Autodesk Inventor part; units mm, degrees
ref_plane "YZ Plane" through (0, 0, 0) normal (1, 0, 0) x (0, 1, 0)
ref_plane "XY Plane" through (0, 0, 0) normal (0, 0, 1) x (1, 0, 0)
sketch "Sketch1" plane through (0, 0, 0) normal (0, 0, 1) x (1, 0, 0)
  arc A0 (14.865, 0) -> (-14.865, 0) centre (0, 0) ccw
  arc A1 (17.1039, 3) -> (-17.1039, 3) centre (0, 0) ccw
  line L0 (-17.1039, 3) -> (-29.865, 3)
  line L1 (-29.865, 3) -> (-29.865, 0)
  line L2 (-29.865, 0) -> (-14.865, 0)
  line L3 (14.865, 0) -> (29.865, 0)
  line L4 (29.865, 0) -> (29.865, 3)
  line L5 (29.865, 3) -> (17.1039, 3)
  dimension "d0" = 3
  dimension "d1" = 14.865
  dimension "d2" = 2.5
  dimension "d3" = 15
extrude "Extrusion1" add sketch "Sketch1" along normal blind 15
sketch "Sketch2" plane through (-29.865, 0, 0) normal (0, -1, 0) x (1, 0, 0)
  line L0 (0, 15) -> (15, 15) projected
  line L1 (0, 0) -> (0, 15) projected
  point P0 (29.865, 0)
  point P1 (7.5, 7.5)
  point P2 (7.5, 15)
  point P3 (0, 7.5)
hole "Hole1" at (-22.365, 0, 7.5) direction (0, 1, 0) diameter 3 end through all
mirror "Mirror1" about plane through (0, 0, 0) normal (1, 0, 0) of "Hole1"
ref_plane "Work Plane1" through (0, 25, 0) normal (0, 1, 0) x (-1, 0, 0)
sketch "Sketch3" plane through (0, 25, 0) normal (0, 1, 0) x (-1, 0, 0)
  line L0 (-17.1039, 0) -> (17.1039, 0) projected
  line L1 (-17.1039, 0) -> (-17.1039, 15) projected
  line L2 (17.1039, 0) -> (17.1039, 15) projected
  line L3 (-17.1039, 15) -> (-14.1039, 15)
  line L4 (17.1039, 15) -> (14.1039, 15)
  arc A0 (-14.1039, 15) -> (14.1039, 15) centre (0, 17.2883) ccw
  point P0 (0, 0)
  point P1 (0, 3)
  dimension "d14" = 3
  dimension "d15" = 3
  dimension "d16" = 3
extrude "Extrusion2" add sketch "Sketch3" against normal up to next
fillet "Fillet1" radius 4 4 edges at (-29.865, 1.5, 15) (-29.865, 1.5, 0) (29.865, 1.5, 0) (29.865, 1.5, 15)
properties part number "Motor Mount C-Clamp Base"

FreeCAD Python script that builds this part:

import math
import FreeCAD as App
import Part
import Sketcher
from FreeCAD import Vector
Q = App.Units.Quantity


def edges_at(feature, points):
    """Names of the edges that pass closest to the given points."""
    edges = feature.Shape.Edges
    near = lambda p: min(range(len(edges)), key=lambda i: edges[i].distToShape(Part.Vertex(*p))[0])
    return sorted({f"Edge{near(p) + 1}" for p in points})

doc = App.newDocument("Part")
body = doc.addObject("PartDesign::Body", "Body")

# Sketch on XY plane
sketch1 = doc.addObject("Sketcher::SketchObject", "Sketch")
body.addObject(sketch1)
sketch1.AttachmentSupport = (doc.XY_Plane, [""])
sketch1.MapMode = "FlatFace"
sketch1.addGeometry([
    Part.ArcOfCircle(Part.Circle(Vector(0, 0, 0), Vector(0, 0, 1), 14.9), math.radians(0), math.radians(180)),  # 0
    Part.LineSegment(Vector(14.9, 0, 0), Vector(29.9, 0, 0)),  # 1
    Part.LineSegment(Vector(29.9, 0, 0), Vector(29.9, 3, 0)),  # 2
    Part.LineSegment(Vector(29.9, 3, 0), Vector(17.1, 3, 0)),  # 3
    Part.ArcOfCircle(Part.Circle(Vector(0, 0, 0), Vector(0, 0, 1), 17.4), math.radians(10), math.radians(170)),  # 4
    Part.LineSegment(Vector(-17.1, 3, 0), Vector(-29.9, 3, 0)),  # 5
    Part.LineSegment(Vector(-29.9, 3, 0), Vector(-29.9, 0, 0)),  # 6
    Part.LineSegment(Vector(-29.9, 0, 0), Vector(-14.9, 0, 0)),  # 7
], False)
sketch1.addConstraint([
    Sketcher.Constraint("Coincident", 0, 1, 1, 1),
    Sketcher.Constraint("Coincident", 1, 2, 2, 1),
    Sketcher.Constraint("Coincident", 2, 2, 3, 1),
    Sketcher.Constraint("Coincident", 3, 2, 4, 1),
    Sketcher.Constraint("Coincident", 4, 2, 5, 1),
    Sketcher.Constraint("Coincident", 5, 2, 6, 1),
    Sketcher.Constraint("Coincident", 6, 2, 7, 1),
    Sketcher.Constraint("Coincident", 7, 2, 0, 2),
    Sketcher.Constraint("Horizontal", 1),
    Sketcher.Constraint("Vertical", 2),
    Sketcher.Constraint("Horizontal", 3),
    Sketcher.Constraint("Horizontal", 5),
    Sketcher.Constraint("Vertical", 6),
    Sketcher.Constraint("Horizontal", 7),
    Sketcher.Constraint("Coincident", 0, 3, -1, 1),
    Sketcher.Constraint("Coincident", 4, 3, -1, 1),
    Sketcher.Constraint("Symmetric", 1, 2, 6, 2, -1, 1),
    Sketcher.Constraint("PointOnObject", 0, 1, -1),
    Sketcher.Constraint("Horizontal", 3, 2, 4, 2),
    Sketcher.Constraint("DistanceX", 1, 1, 1, 2, Q("15 mm")),
    Sketcher.Constraint("DistanceY", 2, 1, 2, 2, Q("3 mm")),
    Sketcher.Constraint("Radius", 0, Q("14.865 mm")),
    Sketcher.Constraint("Radius", 4, Q("17.365 mm")),
])
pad1 = doc.addObject("PartDesign::Pad", "Pad")
body.addObject(pad1)
pad1.Profile = sketch1
pad1.Length = 15

# Sketch on XZ plane
sketch2 = doc.addObject("Sketcher::SketchObject", "Sketch001")
body.addObject(sketch2)
sketch2.AttachmentSupport = (doc.XZ_Plane, [""])
sketch2.MapMode = "FlatFace"
sketch2.addGeometry(Part.Circle(Vector(-22.4, 7.5, 0), Vector(0, 0, 1), 1.5), False)
sketch2.addConstraint([
    Sketcher.Constraint("Diameter", 0, Q("3 mm")),
    Sketcher.Constraint("DistanceY", -1, 1, 0, 3, Q("7.5 mm")),
    Sketcher.Constraint("DistanceX", 0, 3, -1, 1, Q("22.365 mm")),
])
doc.recompute()
hole = doc.addObject("PartDesign::Hole", "Hole")
body.addObject(hole)
hole.Profile = sketch2
hole.ThreadType = "None"
hole.Diameter = 3
hole.DepthType = "ThroughAll"
doc.recompute()

mirrored = doc.addObject("PartDesign::Mirrored", "Mirrored")
body.addObject(mirrored)
mirrored.Originals = [hole]
mirrored.MirrorPlane = (doc.YZ_Plane, [""])
body.Tip = mirrored

# Sketch on XZ plane
sketch3 = doc.addObject("Sketcher::SketchObject", "Sketch002")
body.addObject(sketch3)
sketch3.AttachmentSupport = (doc.XZ_Plane, [""])
sketch3.MapMode = "FlatFace"
sketch3.AttachmentOffset = App.Placement(Vector(0, 0, -25), App.Rotation())
sketch3.addGeometry([
    Part.LineSegment(Vector(17.1, 15, 0), Vector(17.1, 0, 0)),  # 0
    Part.LineSegment(Vector(17.1, 0, 0), Vector(-17.1, 0, 0)),  # 1
    Part.LineSegment(Vector(-17.1, 0, 0), Vector(-17.1, 15, 0)),  # 2
    Part.LineSegment(Vector(-17.1, 15, 0), Vector(-14.1, 15, 0)),  # 3
    Part.ArcOfCircle(Part.Circle(Vector(0, 17.3, 0), Vector(0, 0, 1), 14.3), math.radians(-171), math.radians(-9)),  # 4
    Part.LineSegment(Vector(14.1, 15, 0), Vector(17.1, 15, 0)),  # 5
], False)
sketch3.addConstraint([
    Sketcher.Constraint("Coincident", 0, 2, 1, 1),
    Sketcher.Constraint("Coincident", 1, 2, 2, 1),
    Sketcher.Constraint("Coincident", 2, 2, 3, 1),
    Sketcher.Constraint("Coincident", 3, 2, 4, 1),
    Sketcher.Constraint("Coincident", 4, 2, 5, 1),
    Sketcher.Constraint("Coincident", 5, 2, 0, 1),
    Sketcher.Constraint("Vertical", 0),
    Sketcher.Constraint("Horizontal", 1),
    Sketcher.Constraint("Vertical", 2),
    Sketcher.Constraint("Horizontal", 3),
    Sketcher.Constraint("Horizontal", 5),
    Sketcher.Constraint("Symmetric", 0, 2, 1, 2, -1, 1),
    Sketcher.Constraint("Symmetric", 3, 2, 4, 2, -2),
    Sketcher.Constraint("DistanceX", 3, 1, 3, 2, Q("3 mm")),
    Sketcher.Constraint("DistanceY", 0, 2, 0, 1, Q("15 mm")),
    Sketcher.Constraint("Radius", 4, Q("14.2883 mm")),
    Sketcher.Constraint("DistanceX", 1, 2, 1, 1, Q("34.2078 mm")),
])
pad2 = doc.addObject("PartDesign::Pad", "Pad001")
body.addObject(pad2)
pad2.Profile = sketch3
pad2.Type = "UpToFirst"
doc.recompute()

fillet = doc.addObject("PartDesign::Fillet", "Fillet")
body.addObject(fillet)
fillet.Base = (pad2, edges_at(pad2, [
    (-29.865, 1.5, 15),
    (-29.865, 1.5, 0),
    (29.865, 1.5, 0),
    (29.865, 1.5, 15),
]))
fillet.Radius = 4

doc.recompute()
